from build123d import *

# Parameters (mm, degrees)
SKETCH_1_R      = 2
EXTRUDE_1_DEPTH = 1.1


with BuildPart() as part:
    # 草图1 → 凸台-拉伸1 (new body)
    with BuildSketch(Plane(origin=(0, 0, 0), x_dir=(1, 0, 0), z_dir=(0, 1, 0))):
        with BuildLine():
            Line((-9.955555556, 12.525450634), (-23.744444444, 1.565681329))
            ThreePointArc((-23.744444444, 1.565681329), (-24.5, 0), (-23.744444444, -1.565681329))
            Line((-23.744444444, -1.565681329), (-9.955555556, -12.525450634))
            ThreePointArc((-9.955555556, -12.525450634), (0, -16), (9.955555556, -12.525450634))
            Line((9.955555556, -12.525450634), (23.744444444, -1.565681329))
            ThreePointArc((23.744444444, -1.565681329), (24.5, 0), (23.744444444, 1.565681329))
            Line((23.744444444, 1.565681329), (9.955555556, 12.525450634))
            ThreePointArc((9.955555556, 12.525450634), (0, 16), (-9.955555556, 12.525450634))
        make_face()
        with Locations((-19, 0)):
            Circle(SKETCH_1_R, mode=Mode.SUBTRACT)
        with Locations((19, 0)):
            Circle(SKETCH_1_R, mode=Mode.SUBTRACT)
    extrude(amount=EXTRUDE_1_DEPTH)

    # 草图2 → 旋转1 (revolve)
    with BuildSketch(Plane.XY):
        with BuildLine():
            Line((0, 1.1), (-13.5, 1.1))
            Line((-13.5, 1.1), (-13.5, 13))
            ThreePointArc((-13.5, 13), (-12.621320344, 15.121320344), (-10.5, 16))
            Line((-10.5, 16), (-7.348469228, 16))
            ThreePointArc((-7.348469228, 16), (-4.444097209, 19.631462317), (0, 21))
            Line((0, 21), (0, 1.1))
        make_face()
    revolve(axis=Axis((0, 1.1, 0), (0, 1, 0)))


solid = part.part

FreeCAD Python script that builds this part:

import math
import FreeCAD as App
import Part
import Sketcher
from FreeCAD import Vector

doc = App.newDocument("Part")
body = doc.addObject("PartDesign::Body", "Body")

# Sketch on XZ plane
sketch1 = doc.addObject("Sketcher::SketchObject", "Sketch")
body.addObject(sketch1)
sketch1.AttachmentSupport = (doc.XZ_Plane, [""])
sketch1.MapMode = "FlatFace"
sketch1.addGeometry(Part.LineSegment(Vector(-10, -12.5, 0), Vector(-23.7, -1.6, 0)), False)
sketch1.addGeometry(Part.ArcOfCircle(Part.Circle(Vector(-22.5, 0, 0), Vector(0, 0, 1), 2), math.radians(128), math.radians(232)), False)
sketch1.addGeometry(Part.LineSegment(Vector(-23.7, 1.6, 0), Vector(-10, 12.5, 0)), False)
sketch1.addGeometry(Part.ArcOfCircle(Part.Circle(Vector(0, 0, 0), Vector(0, 0, 1), 16), math.radians(52), math.radians(128)), False)
sketch1.addGeometry(Part.LineSegment(Vector(10, 12.5, 0), Vector(23.7, 1.6, 0)), False)
sketch1.addGeometry(Part.ArcOfCircle(Part.Circle(Vector(22.5, 0, 0), Vector(0, 0, 1), 2), math.radians(-52), math.radians(52)), False)
sketch1.addGeometry(Part.LineSegment(Vector(23.7, -1.6, 0), Vector(10, -12.5, 0)), False)
sketch1.addGeometry(Part.ArcOfCircle(Part.Circle(Vector(0, 0, 0), Vector(0, 0, 1), 16), math.radians(-128), math.radians(-52)), False)
sketch1.addGeometry(Part.Circle(Vector(-19, 0, 0), Vector(0, 0, 1), 2), False)
sketch1.addGeometry(Part.Circle(Vector(19, 0, 0), Vector(0, 0, 1), 2), False)
sketch1.addConstraint(Sketcher.Constraint("Tangent", 0, 2, 1, 2))
sketch1.addConstraint(Sketcher.Constraint("Tangent", 1, 1, 2, 1))
sketch1.addConstraint(Sketcher.Constraint("Tangent", 2, 2, 3, 2))
sketch1.addConstraint(Sketcher.Constraint("Tangent", 3, 1, 4, 1))
sketch1.addConstraint(Sketcher.Constraint("Tangent", 4, 2, 5, 2))
sketch1.addConstraint(Sketcher.Constraint("Tangent", 5, 1, 6, 1))
sketch1.addConstraint(Sketcher.Constraint("Tangent", 6, 2, 7, 2))
sketch1.addConstraint(Sketcher.Constraint("Tangent", 7, 1, 0, 1))
sketch1.addConstraint(Sketcher.Constraint("Coincident", 3, 3, -1, 1))
sketch1.addConstraint(Sketcher.Constraint("Coincident", 7, 3, -1, 1))
sketch1.addConstraint(Sketcher.Constraint("Equal", 1, 5))
sketch1.addConstraint(Sketcher.Constraint("Equal", 3, 7))
sketch1.addConstraint(Sketcher.Constraint("Equal", 5, 8))
sketch1.addConstraint(Sketcher.Constraint("Equal", 8, 9))
sketch1.addConstraint(Sketcher.Constraint("Symmetric", 1, 3, 5, 3, -1, 1))
sketch1.addConstraint(Sketcher.Constraint("Symmetric", 8, 3, 9, 3, -1, 1))
sketch1.addConstraint(Sketcher.Constraint("PointOnObject", 1, 3, -1))
sketch1.addConstraint(Sketcher.Constraint("PointOnObject", 8, 3, -1))
sketch1.addConstraint(Sketcher.Constraint("Diameter", 8, 4.0))
sketch1.addConstraint(Sketcher.Constraint("Radius", 3, 16.0))
sketch1.addConstraint(Sketcher.Constraint("DistanceX", 8, 3, -1, 1, 19.0))
sketch1.addConstraint(Sketcher.Constraint("DistanceX", 1, 3, 5, 3, 45.0))
pad1 = doc.addObject("PartDesign::Pad", "Pad")
body.addObject(pad1)
pad1.Profile = sketch1
pad1.Length = 1.1
pad1.Reversed = True

# Sketch on XY plane
sketch2 = doc.addObject("Sketcher::SketchObject", "Sketch001")
body.addObject(sketch2)
sketch2.AttachmentSupport = (doc.XY_Plane, [""])
sketch2.MapMode = "FlatFace"
sketch2.addGeometry(Part.LineSegment(Vector(-13.5, 1.1, 0), Vector(0, 1.1, 0)), False)
sketch2.addGeometry(Part.LineSegment(Vector(0, 1.1, 0), Vector(0, 21, 0)), False)
sketch2.addGeometry(Part.ArcOfCircle(Part.Circle(Vector(0, 13.1, 0), Vector(0, 0, 1), 7.9), math.radians(90), math.radians(158)), False)
sketch2.addGeometry(Part.LineSegment(Vector(-7.3, 16, 0), Vector(-10.5, 16, 0)), False)
sketch2.addGeometry(Part.ArcOfCircle(Part.Circle(Vector(-10.5, 13, 0), Vector(0, 0, 1), 3), math.radians(90), math.radians(180)), False)
sketch2.addGeometry(Part.LineSegment(Vector(-13.5, 13, 0), Vector(-13.5, 1.1, 0)), False)
sketch2.addConstraint(Sketcher.Constraint("Coincident", 0, 2, 1, 1))
sketch2.addConstraint(Sketcher.Constraint("Coincident", 1, 2, 2, 1))
sketch2.addConstraint(Sketcher.Constraint("Coincident", 2, 2, 3, 1))
sketch2.addConstraint(Sketcher.Constraint("Tangent", 3, 2, 4, 1))
sketch2.addConstraint(Sketcher.Constraint("Tangent", 4, 2, 5, 1))
sketch2.addConstraint(Sketcher.Constraint("Coincident", 5, 2, 0, 1))
sketch2.addConstraint(Sketcher.Constraint("Horizontal", 0))
sketch2.addConstraint(Sketcher.Constraint("Vertical", 1))
sketch2.addConstraint(Sketcher.Constraint("Horizontal", 3))
sketch2.addConstraint(Sketcher.Constraint("Vertical", 5))
sketch2.addConstraint(Sketcher.Constraint("PointOnObject", 2, 3, -2))
sketch2.addConstraint(Sketcher.Constraint("PointOnObject", 0, 2, -2))
sketch2.addConstraint(Sketcher.Constraint("Radius", 4, 3.0))
sketch2.addConstraint(Sketcher.Constraint("Radius", 2, 7.9))
sketch2.addConstraint(Sketcher.Constraint("DistanceX", 0, 1, 0, 2, 13.5))
sketch2.addConstraint(Sketcher.Constraint("DistanceY", 1, 1, 1, 2, 19.9))
sketch2.addConstraint(Sketcher.Constraint("DistanceY", 5, 2, 5, 1, 11.9))
sketch2.addConstraint(Sketcher.Constraint("DistanceY", -1, 1, 4, 3, 13.0))
revolution = doc.addObject("PartDesign::Revolution", "Revolution")
body.addObject(revolution)
revolution.Profile = sketch2
revolution.ReferenceAxis = (sketch2, ["V_Axis"])
revolution.Angle = 360

doc.recompute()
